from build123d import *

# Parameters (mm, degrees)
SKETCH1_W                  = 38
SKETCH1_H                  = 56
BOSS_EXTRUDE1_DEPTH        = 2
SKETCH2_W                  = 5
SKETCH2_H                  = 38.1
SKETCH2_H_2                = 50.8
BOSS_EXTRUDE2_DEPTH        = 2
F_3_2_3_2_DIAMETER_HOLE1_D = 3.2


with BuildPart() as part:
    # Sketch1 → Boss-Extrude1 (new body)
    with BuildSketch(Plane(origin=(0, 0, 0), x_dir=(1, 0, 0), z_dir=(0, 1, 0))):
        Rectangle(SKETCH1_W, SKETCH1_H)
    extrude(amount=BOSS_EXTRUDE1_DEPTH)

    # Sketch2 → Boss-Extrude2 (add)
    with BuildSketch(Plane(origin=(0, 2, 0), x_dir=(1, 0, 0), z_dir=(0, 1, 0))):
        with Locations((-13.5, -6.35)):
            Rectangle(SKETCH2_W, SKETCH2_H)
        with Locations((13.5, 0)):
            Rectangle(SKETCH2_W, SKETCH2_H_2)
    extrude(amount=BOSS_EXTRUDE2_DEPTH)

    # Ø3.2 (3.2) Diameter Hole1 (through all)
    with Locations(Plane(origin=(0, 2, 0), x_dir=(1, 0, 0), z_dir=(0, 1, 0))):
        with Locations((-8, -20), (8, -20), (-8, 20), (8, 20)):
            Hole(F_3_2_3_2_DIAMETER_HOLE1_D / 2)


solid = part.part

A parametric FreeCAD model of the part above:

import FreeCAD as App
import Part
import Sketcher
from FreeCAD import Vector
Q = App.Units.Quantity


def add_polygon(sketch, points):
    """Adds a closed chain of lines whose ends are joined by coincident constraints."""
    first, n = sketch.GeometryCount, len(points)
    for a, b in zip(points, points[1:] + points[:1]):
        sketch.addGeometry(Part.LineSegment(App.Vector(*a, 0), App.Vector(*b, 0)), False)
    for i in range(n):
        sketch.addConstraint(Sketcher.Constraint("Coincident", first + i, 2, first + (i + 1) % n, 1))

doc = App.newDocument("Part")
body = doc.addObject("PartDesign::Body", "Body")

# Sketch on XZ plane
sketch1 = doc.addObject("Sketcher::SketchObject", "Sketch")
body.addObject(sketch1)
sketch1.AttachmentSupport = (doc.XZ_Plane, [""])
sketch1.MapMode = "FlatFace"
add_polygon(sketch1, [(-19, -28), (-19, 28), (19, 28), (19, -28)])  # lines 0-3
sketch1.addConstraint([
    Sketcher.Constraint("Vertical", 0),
    Sketcher.Constraint("Horizontal", 1),
    Sketcher.Constraint("Vertical", 2),
    Sketcher.Constraint("Horizontal", 3),
    Sketcher.Constraint("Symmetric", 0, 2, 2, 2, -1, 1),
    Sketcher.Constraint("DistanceX", 1, 1, 1, 2, Q("38 mm")),
    Sketcher.Constraint("DistanceY", 0, 1, 0, 2, Q("56 mm")),
])
pad1 = doc.addObject("PartDesign::Pad", "Pad")
body.addObject(pad1)
pad1.Profile = sketch1
pad1.Length = 2
pad1.Reversed = True

# Sketch on XZ plane
sketch2 = doc.addObject("Sketcher::SketchObject", "Sketch001")
body.addObject(sketch2)
sketch2.AttachmentSupport = (doc.XZ_Plane, [""])
sketch2.MapMode = "FlatFace"
sketch2.AttachmentOffset = App.Placement(Vector(0, 0, -2), App.Rotation())
add_polygon(sketch2, [(-16, -12.7), (-16, 25.4), (-11, 25.4), (-11, -12.7)])  # lines 0-3
add_polygon(sketch2, [(11, -25.4), (11, 25.4), (16, 25.4), (16, -25.4)])  # lines 4-7
sketch2.addConstraint([
    Sketcher.Constraint("Vertical", 0),
    Sketcher.Constraint("Horizontal", 1),
    Sketcher.Constraint("Vertical", 2),
    Sketcher.Constraint("Horizontal", 3),
    Sketcher.Constraint("Vertical", 4),
    Sketcher.Constraint("Horizontal", 5),
    Sketcher.Constraint("Vertical", 6),
    Sketcher.Constraint("Horizontal", 7),
    Sketcher.Constraint("Symmetric", 0, 2, 6, 2, -1, 1),
    Sketcher.Constraint("Symmetric", 1, 2, 4, 2, -2),
    Sketcher.Constraint("DistanceX", 1, 1, 1, 2, Q("5 mm")),
    Sketcher.Constraint("DistanceY", 0, 1, 0, 2, Q("38.1 mm")),
    Sketcher.Constraint("DistanceY", 4, 1, 4, 2, Q("50.8 mm")),
    Sketcher.Constraint("DistanceX", 0, 2, -1, 1, Q("16 mm")),
])
pad2 = doc.addObject("PartDesign::Pad", "Pad001")
body.addObject(pad2)
pad2.Profile = sketch2
pad2.Length = 2
pad2.Reversed = True

# Sketch on XZ plane
sketch3 = doc.addObject("Sketcher::SketchObject", "Sketch002")
body.addObject(sketch3)
sketch3.AttachmentSupport = (doc.XZ_Plane, [""])
sketch3.MapMode = "FlatFace"
sketch3.AttachmentOffset = App.Placement(Vector(0, 0, -2), App.Rotation())
sketch3.addGeometry([
    Part.Circle(Vector(-8, 20, 0), Vector(0, 0, 1), 1.6),
    Part.Circle(Vector(8, 20, 0), Vector(0, 0, 1), 1.6),
    Part.Circle(Vector(-8, -20, 0), Vector(0, 0, 1), 1.6),
    Part.Circle(Vector(8, -20, 0), Vector(0, 0, 1), 1.6),
], False)
sketch3.addConstraint([
    Sketcher.Constraint("Equal", 0, 1),
    Sketcher.Constraint("Equal", 1, 2),
    Sketcher.Constraint("Equal", 2, 3),
    Sketcher.Constraint("Symmetric", 1, 3, 2, 3, -1, 1),
    Sketcher.Constraint("Symmetric", 0, 3, 3, 3, -1, 1),
    Sketcher.Constraint("Symmetric", 0, 3, 1, 3, -2),
    Sketcher.Constraint("Diameter", 0, Q("3.2 mm")),
    Sketcher.Constraint("DistanceX", 0, 3, -1, 1, Q("8 mm")),
    Sketcher.Constraint("DistanceY", -1, 1, 0, 3, Q("20 mm")),
])
doc.recompute()
hole = doc.addObject("PartDesign::Hole", "Hole")
body.addObject(hole)
hole.Profile = sketch3
hole.ThreadType = "None"
hole.Diameter = 3.2
hole.DepthType = "ThroughAll"
hole.Reversed = True

doc.recompute()
